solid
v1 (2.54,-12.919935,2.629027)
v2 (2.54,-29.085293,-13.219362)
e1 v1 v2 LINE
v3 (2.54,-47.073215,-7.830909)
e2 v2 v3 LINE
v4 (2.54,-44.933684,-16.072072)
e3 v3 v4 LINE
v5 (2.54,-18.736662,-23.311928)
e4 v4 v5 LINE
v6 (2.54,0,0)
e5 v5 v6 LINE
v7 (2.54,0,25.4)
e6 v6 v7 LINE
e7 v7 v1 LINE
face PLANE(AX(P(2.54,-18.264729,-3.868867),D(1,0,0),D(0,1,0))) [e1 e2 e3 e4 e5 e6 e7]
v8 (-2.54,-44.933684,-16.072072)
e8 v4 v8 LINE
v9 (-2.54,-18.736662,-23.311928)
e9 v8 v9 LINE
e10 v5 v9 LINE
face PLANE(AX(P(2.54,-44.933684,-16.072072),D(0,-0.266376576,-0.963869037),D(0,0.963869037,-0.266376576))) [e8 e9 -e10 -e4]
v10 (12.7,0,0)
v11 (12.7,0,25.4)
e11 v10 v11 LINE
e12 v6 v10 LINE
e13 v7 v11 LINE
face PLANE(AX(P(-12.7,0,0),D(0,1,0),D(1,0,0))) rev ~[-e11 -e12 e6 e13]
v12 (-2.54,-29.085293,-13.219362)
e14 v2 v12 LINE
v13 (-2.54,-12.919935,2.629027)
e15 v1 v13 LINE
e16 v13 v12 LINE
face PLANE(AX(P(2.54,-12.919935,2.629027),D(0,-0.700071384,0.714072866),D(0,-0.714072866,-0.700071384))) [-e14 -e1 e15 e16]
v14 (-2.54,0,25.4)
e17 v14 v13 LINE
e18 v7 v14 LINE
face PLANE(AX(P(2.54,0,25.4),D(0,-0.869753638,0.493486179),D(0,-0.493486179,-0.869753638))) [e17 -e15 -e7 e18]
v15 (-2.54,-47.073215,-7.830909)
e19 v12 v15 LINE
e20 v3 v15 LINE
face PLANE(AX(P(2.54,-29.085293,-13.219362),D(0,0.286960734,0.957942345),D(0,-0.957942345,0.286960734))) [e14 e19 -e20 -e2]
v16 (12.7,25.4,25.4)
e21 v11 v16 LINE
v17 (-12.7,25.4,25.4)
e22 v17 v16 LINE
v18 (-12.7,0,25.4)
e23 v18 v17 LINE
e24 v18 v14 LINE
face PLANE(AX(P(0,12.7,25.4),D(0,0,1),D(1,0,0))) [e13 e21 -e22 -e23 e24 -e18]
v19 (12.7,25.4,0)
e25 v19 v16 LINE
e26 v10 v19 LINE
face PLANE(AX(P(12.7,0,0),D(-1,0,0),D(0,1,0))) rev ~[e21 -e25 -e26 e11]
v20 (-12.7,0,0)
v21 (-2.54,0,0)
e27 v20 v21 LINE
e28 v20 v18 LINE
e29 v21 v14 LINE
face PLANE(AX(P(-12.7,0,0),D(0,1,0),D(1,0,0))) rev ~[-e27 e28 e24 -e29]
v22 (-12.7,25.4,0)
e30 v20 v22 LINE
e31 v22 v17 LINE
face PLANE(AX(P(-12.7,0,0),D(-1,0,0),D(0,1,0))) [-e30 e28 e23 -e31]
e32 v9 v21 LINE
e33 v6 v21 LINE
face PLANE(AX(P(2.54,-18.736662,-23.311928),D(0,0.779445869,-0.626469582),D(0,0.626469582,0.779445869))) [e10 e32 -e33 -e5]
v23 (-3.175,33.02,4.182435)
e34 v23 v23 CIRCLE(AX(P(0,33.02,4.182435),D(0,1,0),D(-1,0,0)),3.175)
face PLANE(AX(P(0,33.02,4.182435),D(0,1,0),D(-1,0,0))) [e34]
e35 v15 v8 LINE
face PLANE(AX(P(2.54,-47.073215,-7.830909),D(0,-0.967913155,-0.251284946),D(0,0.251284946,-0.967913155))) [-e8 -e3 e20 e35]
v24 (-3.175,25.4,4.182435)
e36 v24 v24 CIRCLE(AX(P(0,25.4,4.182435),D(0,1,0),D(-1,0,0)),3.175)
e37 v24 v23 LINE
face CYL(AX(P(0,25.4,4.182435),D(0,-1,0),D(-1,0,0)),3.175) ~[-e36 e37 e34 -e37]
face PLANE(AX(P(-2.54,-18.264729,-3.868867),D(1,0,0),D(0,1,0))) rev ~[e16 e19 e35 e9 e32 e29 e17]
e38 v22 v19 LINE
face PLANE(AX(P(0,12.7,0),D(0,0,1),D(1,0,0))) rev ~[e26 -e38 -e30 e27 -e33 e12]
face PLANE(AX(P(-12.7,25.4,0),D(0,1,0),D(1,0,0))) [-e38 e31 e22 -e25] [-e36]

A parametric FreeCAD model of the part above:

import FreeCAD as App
import Part
import Sketcher
from FreeCAD import Vector
Q = App.Units.Quantity


def add_polygon(sketch, points):
    """Adds a closed chain of lines whose ends are joined by coincident constraints."""
    first, n = sketch.GeometryCount, len(points)
    for a, b in zip(points, points[1:] + points[:1]):
        sketch.addGeometry(Part.LineSegment(App.Vector(*a, 0), App.Vector(*b, 0)), False)
    for i in range(n):
        sketch.addConstraint(Sketcher.Constraint("Coincident", first + i, 2, first + (i + 1) % n, 1))

doc = App.newDocument("Part")
params = doc.addObject("Spreadsheet::Sheet", "Params")
for row, (alias, value) in enumerate([
    ("sketch1_width", "1 in"),
    ("pad1_length", "1 in"),
    ("sketch2_height", "1 in"),
    ("pad2_length", "0.2 in"),
    ("sketch3_diameter", "0.25 in"),
    ("pad3_length", "0.3 in"),
], start=1):
    params.set(f"A{row}", alias)
    params.set(f"B{row}", "=" + value)
    params.setAlias(f"B{row}", alias)

body = doc.addObject("PartDesign::Body", "Body")

# Sketch on XY plane
sketch1 = body.newObject("Sketcher::SketchObject", "Sketch")
sketch1.AttachmentSupport = (doc.getObject("XY_Plane"), [""])
sketch1.MapMode = "FlatFace"
add_polygon(sketch1, [(-13, 25), (-13, 0), (13, 0), (13, 25)])  # lines 0-3
sketch1.addConstraint([
    Sketcher.Constraint("Vertical", 0),
    Sketcher.Constraint("Horizontal", 1),
    Sketcher.Constraint("Vertical", 2),
    Sketcher.Constraint("Horizontal", 3),
    Sketcher.Constraint("Symmetric", 0, 2, 1, 2, -1, 1),
    Sketcher.Constraint("Equal", 3, 0),
    Sketcher.Constraint("DistanceX", 1, 1, 1, 2, Q("1 in")),
])
sketch1.setExpression("Constraints[10]", "Params.sketch1_width")
pad1 = body.newObject("PartDesign::Pad", "Pad")
pad1.Profile = sketch1
pad1.setExpression("Length", "Params.pad1_length")

# Sketch on YZ plane
sketch2 = body.newObject("Sketcher::SketchObject", "Sketch001")
sketch2.AttachmentSupport = (doc.getObject("YZ_Plane"), [""])
sketch2.MapMode = "FlatFace"
sketch2.AttachmentOffset = App.Placement(Vector(0, 0, 0.1 * 25.4), App.Rotation())
add_polygon(sketch2, [(-19, -23), (0, 0), (0, 25), (-13, 3), (-29, -13), (-47, -8), (-45, -16)])  # lines 0-6
sketch2.addConstraint([
    Sketcher.Constraint("Vertical", 1),
    Sketcher.Constraint("Coincident", 0, 2, -1, 1),
    Sketcher.Constraint("DistanceY", 1, 1, 1, 2, Q("1 in")),
    Sketcher.Constraint("DistanceY", 5, 2, 2, 2, Q("18.701099 mm")),
    Sketcher.Constraint("DistanceY", 4, 2, -1, 1, Q("7.830909 mm")),
    Sketcher.Constraint("DistanceY", 5, 2, -1, 1, Q("16.072072 mm")),
    Sketcher.Constraint("DistanceX", 6, 2, -1, 1, Q("18.736662 mm")),
    Sketcher.Constraint("DistanceY", 6, 2, -1, 1, Q("23.311928 mm")),
    Sketcher.Constraint("DistanceY", 3, 2, 2, 2, Q("15.848389 mm")),
    Sketcher.Constraint("DistanceX", 4, 2, 3, 2, Q("17.987922 mm")),
    Sketcher.Constraint("DistanceX", 4, 2, 2, 2, Q("34.15328 mm")),
    Sketcher.Constraint("DistanceX", 4, 2, 5, 2, Q("2.139531 mm")),
    Sketcher.Constraint("DistanceX", 3, 2, 6, 2, Q("10.348631 mm")),
])
sketch2.setExpression("Constraints[9]", "Params.sketch2_height")
pad2 = body.newObject("PartDesign::Pad", "Pad001")
pad2.Profile = sketch2
pad2.setExpression("Length", "Params.pad2_length")
pad2.Reversed = True

# Sketch on XZ plane
sketch3 = body.newObject("Sketcher::SketchObject", "Sketch002")
sketch3.AttachmentSupport = (doc.getObject("XZ_Plane"), [""])
sketch3.MapMode = "FlatFace"
sketch3.AttachmentOffset = App.Placement(Vector(0, 0, -1 * 25.4), App.Rotation())
sketch3.addGeometry(Part.Circle(Vector(0, 4.2, 0), Vector(0, 0, 1), 3.2), False)
sketch3.addConstraint([
    Sketcher.Constraint("PointOnObject", 0, 3, -2),
    Sketcher.Constraint("Diameter", 0, Q("0.25 in")),
    Sketcher.Constraint("DistanceY", -1, 1, 0, 3, Q("4.182435 mm")),
])
sketch3.setExpression("Constraints[1]", "Params.sketch3_diameter")
pad3 = body.newObject("PartDesign::Pad", "Pad002")
pad3.Profile = sketch3
pad3.setExpression("Length", "Params.pad3_length")
pad3.Reversed = True

doc.recompute()
